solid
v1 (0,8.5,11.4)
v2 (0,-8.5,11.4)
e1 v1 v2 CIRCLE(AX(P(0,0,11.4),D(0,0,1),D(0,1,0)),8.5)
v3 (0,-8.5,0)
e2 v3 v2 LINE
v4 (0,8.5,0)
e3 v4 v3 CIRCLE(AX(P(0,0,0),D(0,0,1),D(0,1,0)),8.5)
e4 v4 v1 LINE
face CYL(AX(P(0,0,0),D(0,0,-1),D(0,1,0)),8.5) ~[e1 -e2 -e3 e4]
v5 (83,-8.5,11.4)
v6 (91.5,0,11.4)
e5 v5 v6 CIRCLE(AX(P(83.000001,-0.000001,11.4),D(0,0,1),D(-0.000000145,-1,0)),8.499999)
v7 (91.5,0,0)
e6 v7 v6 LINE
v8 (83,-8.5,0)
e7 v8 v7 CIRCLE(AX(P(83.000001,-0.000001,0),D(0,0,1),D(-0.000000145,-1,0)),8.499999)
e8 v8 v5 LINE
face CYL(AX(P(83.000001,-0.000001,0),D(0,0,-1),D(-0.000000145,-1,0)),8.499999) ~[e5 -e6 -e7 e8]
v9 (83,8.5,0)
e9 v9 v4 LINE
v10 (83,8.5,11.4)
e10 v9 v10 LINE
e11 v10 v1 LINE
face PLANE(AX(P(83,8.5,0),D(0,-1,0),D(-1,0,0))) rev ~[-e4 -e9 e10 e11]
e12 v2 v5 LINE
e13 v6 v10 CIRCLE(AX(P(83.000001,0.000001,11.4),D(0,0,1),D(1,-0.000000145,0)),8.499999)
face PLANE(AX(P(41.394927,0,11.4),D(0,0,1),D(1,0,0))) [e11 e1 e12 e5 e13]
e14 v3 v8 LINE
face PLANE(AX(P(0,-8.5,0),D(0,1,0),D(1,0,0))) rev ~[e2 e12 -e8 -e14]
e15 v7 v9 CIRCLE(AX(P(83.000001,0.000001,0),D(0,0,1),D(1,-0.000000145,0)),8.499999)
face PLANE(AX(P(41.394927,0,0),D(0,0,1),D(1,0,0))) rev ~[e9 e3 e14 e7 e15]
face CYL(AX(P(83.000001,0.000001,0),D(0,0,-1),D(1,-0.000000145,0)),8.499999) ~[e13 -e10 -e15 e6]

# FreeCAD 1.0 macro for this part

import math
import FreeCAD as App
import Part
import Sketcher

doc = App.newDocument("Part")
params = doc.addObject("Spreadsheet::Sheet", "Params")
for row, (alias, value) in enumerate([
    ("sketch1_radius", "8.499999 mm"),
    ("sketch1_width", "83 mm"),
    ("pad1_length", "11.4 mm"),
], start=1):
    params.set(f"A{row}", alias)
    params.set(f"B{row}", "=" + value)
    params.setAlias(f"B{row}", alias)

body = doc.addObject("PartDesign::Body", "Body")

# Sketch on XY plane
sketch1 = doc.addObject("Sketcher::SketchObject", "Sketch")
body.addObject(sketch1)
sketch1.AttachmentSupport = (doc.XY_Plane, [""])
sketch1.MapMode = "FlatFace"
sketch1.addGeometry([
    Part.LineSegment(App.Vector(0, -8.5, 0), App.Vector(83, -8.5, 0)),  # 0
    Part.ArcOfCircle(Part.Circle(App.Vector(83.000001, -0.000001, 0), App.Vector(0, 0, 1), 8.499999), math.radians(-90.000008), math.radians(0.000008)),  # 1
    Part.ArcOfCircle(Part.Circle(App.Vector(83.000001, 0.000001, 0), App.Vector(0, 0, 1), 8.499999), math.radians(-0.000008), math.radians(90.000008)),  # 2
    Part.LineSegment(App.Vector(83, 8.5, 0), App.Vector(0, 8.5, 0)),  # 3
    Part.ArcOfCircle(Part.Circle(App.Vector(0, 0, 0), App.Vector(0, 0, 1), 8.5), math.radians(90), math.radians(270)),  # 4
], False)
sketch1.addConstraint([
    Sketcher.Constraint("Tangent", 0, 2, 1, 1),
    Sketcher.Constraint("Tangent", 1, 2, 2, 1),
    Sketcher.Constraint("Tangent", 2, 2, 3, 1),
    Sketcher.Constraint("Tangent", 3, 2, 4, 1),
    Sketcher.Constraint("Tangent", 4, 2, 0, 1),
    Sketcher.Constraint("Horizontal", 0),
    Sketcher.Constraint("Horizontal", 3),
    Sketcher.Constraint("Coincident", 4, 3, -1, 1),
    Sketcher.Constraint("Equal", 1, 2),
    Sketcher.Constraint("PointOnObject", 1, 2, -1),
    Sketcher.Constraint("Radius", 1, 8.499999),
    Sketcher.Constraint("DistanceX", 0, 1, 0, 2, 83.0),
])
sketch1.setExpression("Constraints[10]", "Params.sketch1_radius")
sketch1.setExpression("Constraints[11]", "Params.sketch1_width")
pad1 = doc.addObject("PartDesign::Pad", "Pad")
body.addObject(pad1)
pad1.Profile = sketch1
pad1.setExpression("Length", "Params.pad1_length")

doc.recompute()
